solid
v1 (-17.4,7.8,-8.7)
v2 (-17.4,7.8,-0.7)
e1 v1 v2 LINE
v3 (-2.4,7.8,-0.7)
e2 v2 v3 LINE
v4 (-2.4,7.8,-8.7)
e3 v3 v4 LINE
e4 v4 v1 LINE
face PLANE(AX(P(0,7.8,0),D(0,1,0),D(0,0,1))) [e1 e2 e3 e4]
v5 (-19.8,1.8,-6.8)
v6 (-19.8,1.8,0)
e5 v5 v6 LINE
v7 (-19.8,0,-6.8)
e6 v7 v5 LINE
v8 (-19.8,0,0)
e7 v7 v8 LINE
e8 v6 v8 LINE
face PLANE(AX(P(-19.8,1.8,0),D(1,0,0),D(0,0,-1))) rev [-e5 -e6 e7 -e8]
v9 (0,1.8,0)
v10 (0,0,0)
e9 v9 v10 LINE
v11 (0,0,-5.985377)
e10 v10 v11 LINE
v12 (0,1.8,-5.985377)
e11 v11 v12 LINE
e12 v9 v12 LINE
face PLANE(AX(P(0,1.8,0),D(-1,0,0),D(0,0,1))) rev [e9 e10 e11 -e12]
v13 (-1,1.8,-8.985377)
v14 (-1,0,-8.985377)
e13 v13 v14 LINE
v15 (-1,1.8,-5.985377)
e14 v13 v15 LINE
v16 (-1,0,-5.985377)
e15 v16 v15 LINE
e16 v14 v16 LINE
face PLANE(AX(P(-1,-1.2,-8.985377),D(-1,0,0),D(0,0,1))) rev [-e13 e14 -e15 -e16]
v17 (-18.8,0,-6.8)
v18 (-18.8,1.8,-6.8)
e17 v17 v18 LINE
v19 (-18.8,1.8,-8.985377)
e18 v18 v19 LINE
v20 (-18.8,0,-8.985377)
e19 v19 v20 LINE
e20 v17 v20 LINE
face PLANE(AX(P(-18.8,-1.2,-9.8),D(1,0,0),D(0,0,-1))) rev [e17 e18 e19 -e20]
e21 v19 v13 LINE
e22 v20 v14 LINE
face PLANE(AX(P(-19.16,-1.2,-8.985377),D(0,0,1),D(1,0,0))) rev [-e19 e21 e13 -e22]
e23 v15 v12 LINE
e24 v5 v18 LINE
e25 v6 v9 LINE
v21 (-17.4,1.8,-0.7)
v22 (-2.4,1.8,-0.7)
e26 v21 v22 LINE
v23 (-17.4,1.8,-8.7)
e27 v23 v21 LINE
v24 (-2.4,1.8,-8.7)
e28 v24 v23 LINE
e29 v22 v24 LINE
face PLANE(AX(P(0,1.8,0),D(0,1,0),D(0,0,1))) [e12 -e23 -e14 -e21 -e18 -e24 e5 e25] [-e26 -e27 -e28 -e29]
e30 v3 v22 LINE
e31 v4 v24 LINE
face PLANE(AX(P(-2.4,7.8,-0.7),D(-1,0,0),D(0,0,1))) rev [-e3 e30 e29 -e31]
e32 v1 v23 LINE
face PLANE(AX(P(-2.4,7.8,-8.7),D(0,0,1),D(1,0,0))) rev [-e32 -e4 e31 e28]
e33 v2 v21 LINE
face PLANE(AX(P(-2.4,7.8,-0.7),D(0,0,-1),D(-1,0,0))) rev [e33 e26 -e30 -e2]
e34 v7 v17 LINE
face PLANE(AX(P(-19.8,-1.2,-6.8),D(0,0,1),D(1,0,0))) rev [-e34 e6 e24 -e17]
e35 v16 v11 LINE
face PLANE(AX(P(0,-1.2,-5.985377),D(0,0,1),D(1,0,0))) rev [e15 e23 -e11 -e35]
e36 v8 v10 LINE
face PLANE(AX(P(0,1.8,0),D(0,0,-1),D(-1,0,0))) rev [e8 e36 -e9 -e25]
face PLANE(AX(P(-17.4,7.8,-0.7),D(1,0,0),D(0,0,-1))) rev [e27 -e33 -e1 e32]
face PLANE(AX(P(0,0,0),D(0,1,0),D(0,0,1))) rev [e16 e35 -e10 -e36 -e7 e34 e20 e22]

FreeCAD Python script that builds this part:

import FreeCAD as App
import Part
import Sketcher
from FreeCAD import Vector


def add_polygon(sketch, points):
    """Adds a closed chain of lines whose ends are joined by coincident constraints."""
    first, n = sketch.GeometryCount, len(points)
    for a, b in zip(points, points[1:] + points[:1]):
        sketch.addGeometry(Part.LineSegment(App.Vector(*a, 0), App.Vector(*b, 0)), False)
    for i in range(n):
        sketch.addConstraint(Sketcher.Constraint("Coincident", first + i, 2, first + (i + 1) % n, 1))

doc = App.newDocument("Part")
body = doc.addObject("PartDesign::Body", "Body")

# Sketch on XZ plane
sketch1 = body.newObject("Sketcher::SketchObject", "Sketch")
sketch1.AttachmentSupport = (doc.getObject("XZ_Plane"), [""])
sketch1.MapMode = "FlatFace"
add_polygon(sketch1, [(-20, -10), (-20, 0), (0, 0), (0, -10)])  # lines 0-3
sketch1.addConstraint([
    Sketcher.Constraint("Vertical", 0),
    Sketcher.Constraint("Horizontal", 1),
    Sketcher.Constraint("Vertical", 2),
    Sketcher.Constraint("Horizontal", 3),
    Sketcher.Constraint("Coincident", 1, 2, -1, 1),
    Sketcher.Constraint("DistanceX", 1, 1, 1, 2, 19.8),
    Sketcher.Constraint("DistanceY", 0, 1, 0, 2, 9.8),
])
pad1 = body.newObject("PartDesign::Pad", "Pad")
pad1.Profile = sketch1
pad1.Length = 1.8
pad1.Reversed = True

# Sketch on XZ plane
sketch2 = body.newObject("Sketcher::SketchObject", "Sketch001")
sketch2.AttachmentSupport = (doc.getObject("XZ_Plane"), [""])
sketch2.MapMode = "FlatFace"
sketch2.AttachmentOffset = App.Placement(Vector(0, 0, -1.8), App.Rotation())
add_polygon(sketch2, [(-17, -9), (-17, -1), (-2, -1), (-2, -9)])  # lines 0-3
sketch2.addConstraint([
    Sketcher.Constraint("Vertical", 0),
    Sketcher.Constraint("Horizontal", 1),
    Sketcher.Constraint("Vertical", 2),
    Sketcher.Constraint("Horizontal", 3),
    Sketcher.Constraint("DistanceX", 1, 1, 1, 2, 15.0),
    Sketcher.Constraint("DistanceY", 0, 1, 0, 2, 8.0),
    Sketcher.Constraint("DistanceX", 0, 2, -1, 1, 17.4),
    Sketcher.Constraint("DistanceY", 0, 2, -1, 1, 0.7),
])
pad2 = body.newObject("PartDesign::Pad", "Pad001")
pad2.Profile = sketch2
pad2.Length = 6
pad2.Reversed = True

# Sketch on XZ plane
sketch3 = body.newObject("Sketcher::SketchObject", "Sketch002")
sketch3.AttachmentSupport = (doc.getObject("XZ_Plane"), [""])
sketch3.MapMode = "FlatFace"
sketch3.AttachmentOffset = App.Placement(Vector(0, 0, -1.8), App.Rotation())
add_polygon(sketch3, [(-19.8, -9.8), (-19.8, -6.8), (-18.8, -6.8), (-18.8, -9.8)])  # lines 0-3
sketch3.addConstraint([
    Sketcher.Constraint("Vertical", 0),
    Sketcher.Constraint("Horizontal", 1),
    Sketcher.Constraint("Vertical", 2),
    Sketcher.Constraint("Horizontal", 3),
    Sketcher.Constraint("DistanceX", 1, 1, 1, 2, 1.0),
    Sketcher.Constraint("DistanceY", 0, 1, 0, 2, 3.0),
    Sketcher.Constraint("DistanceX", 0, 2, -1, 1, 19.8),
    Sketcher.Constraint("DistanceY", 0, 2, -1, 1, 6.8),
])
pocket1 = body.newObject("PartDesign::Pocket", "Pocket")
pocket1.Profile = sketch3
pocket1.Length = 3
pocket1.Reversed = True

# Sketch on XZ plane
sketch4 = body.newObject("Sketcher::SketchObject", "Sketch003")
sketch4.AttachmentSupport = (doc.getObject("XZ_Plane"), [""])
sketch4.MapMode = "FlatFace"
sketch4.AttachmentOffset = App.Placement(Vector(0, 0, -1.8), App.Rotation())
add_polygon(sketch4, [(-19.2, -9.9), (-19.2, -9), (0, -9), (0, -9.9)])  # lines 0-3
sketch4.addConstraint([
    Sketcher.Constraint("Vertical", 0),
    Sketcher.Constraint("Horizontal", 1),
    Sketcher.Constraint("Vertical", 2),
    Sketcher.Constraint("Horizontal", 3),
    Sketcher.Constraint("PointOnObject", 1, 2, -2),
    Sketcher.Constraint("DistanceX", 1, 1, 1, 2, 19.16),
    Sketcher.Constraint("DistanceY", 0, 1, 0, 2, 0.95),
    Sketcher.Constraint("DistanceY", 0, 2, -1, 1, 8.985377),
])
pocket2 = body.newObject("PartDesign::Pocket", "Pocket001")
pocket2.Profile = sketch4
pocket2.Length = 3
pocket2.Reversed = True

# Sketch on XZ plane
sketch5 = body.newObject("Sketcher::SketchObject", "Sketch004")
sketch5.AttachmentSupport = (doc.getObject("XZ_Plane"), [""])
sketch5.MapMode = "FlatFace"
sketch5.AttachmentOffset = App.Placement(Vector(0, 0, -1.8), App.Rotation())
add_polygon(sketch5, [(-1, -9), (-1, -6), (0, -6), (0, -9)])  # lines 0-3
sketch5.addConstraint([
    Sketcher.Constraint("Vertical", 0),
    Sketcher.Constraint("Horizontal", 1),
    Sketcher.Constraint("Vertical", 2),
    Sketcher.Constraint("Horizontal", 3),
    Sketcher.Constraint("PointOnObject", 1, 2, -2),
    Sketcher.Constraint("DistanceX", 1, 1, 1, 2, 1.0),
    Sketcher.Constraint("DistanceY", 0, 1, 0, 2, 3.0),
    Sketcher.Constraint("DistanceY", 0, 2, -1, 1, 5.985377),
])
pocket3 = body.newObject("PartDesign::Pocket", "Pocket002")
pocket3.Profile = sketch5
pocket3.Length = 3
pocket3.Reversed = True

doc.recompute()
